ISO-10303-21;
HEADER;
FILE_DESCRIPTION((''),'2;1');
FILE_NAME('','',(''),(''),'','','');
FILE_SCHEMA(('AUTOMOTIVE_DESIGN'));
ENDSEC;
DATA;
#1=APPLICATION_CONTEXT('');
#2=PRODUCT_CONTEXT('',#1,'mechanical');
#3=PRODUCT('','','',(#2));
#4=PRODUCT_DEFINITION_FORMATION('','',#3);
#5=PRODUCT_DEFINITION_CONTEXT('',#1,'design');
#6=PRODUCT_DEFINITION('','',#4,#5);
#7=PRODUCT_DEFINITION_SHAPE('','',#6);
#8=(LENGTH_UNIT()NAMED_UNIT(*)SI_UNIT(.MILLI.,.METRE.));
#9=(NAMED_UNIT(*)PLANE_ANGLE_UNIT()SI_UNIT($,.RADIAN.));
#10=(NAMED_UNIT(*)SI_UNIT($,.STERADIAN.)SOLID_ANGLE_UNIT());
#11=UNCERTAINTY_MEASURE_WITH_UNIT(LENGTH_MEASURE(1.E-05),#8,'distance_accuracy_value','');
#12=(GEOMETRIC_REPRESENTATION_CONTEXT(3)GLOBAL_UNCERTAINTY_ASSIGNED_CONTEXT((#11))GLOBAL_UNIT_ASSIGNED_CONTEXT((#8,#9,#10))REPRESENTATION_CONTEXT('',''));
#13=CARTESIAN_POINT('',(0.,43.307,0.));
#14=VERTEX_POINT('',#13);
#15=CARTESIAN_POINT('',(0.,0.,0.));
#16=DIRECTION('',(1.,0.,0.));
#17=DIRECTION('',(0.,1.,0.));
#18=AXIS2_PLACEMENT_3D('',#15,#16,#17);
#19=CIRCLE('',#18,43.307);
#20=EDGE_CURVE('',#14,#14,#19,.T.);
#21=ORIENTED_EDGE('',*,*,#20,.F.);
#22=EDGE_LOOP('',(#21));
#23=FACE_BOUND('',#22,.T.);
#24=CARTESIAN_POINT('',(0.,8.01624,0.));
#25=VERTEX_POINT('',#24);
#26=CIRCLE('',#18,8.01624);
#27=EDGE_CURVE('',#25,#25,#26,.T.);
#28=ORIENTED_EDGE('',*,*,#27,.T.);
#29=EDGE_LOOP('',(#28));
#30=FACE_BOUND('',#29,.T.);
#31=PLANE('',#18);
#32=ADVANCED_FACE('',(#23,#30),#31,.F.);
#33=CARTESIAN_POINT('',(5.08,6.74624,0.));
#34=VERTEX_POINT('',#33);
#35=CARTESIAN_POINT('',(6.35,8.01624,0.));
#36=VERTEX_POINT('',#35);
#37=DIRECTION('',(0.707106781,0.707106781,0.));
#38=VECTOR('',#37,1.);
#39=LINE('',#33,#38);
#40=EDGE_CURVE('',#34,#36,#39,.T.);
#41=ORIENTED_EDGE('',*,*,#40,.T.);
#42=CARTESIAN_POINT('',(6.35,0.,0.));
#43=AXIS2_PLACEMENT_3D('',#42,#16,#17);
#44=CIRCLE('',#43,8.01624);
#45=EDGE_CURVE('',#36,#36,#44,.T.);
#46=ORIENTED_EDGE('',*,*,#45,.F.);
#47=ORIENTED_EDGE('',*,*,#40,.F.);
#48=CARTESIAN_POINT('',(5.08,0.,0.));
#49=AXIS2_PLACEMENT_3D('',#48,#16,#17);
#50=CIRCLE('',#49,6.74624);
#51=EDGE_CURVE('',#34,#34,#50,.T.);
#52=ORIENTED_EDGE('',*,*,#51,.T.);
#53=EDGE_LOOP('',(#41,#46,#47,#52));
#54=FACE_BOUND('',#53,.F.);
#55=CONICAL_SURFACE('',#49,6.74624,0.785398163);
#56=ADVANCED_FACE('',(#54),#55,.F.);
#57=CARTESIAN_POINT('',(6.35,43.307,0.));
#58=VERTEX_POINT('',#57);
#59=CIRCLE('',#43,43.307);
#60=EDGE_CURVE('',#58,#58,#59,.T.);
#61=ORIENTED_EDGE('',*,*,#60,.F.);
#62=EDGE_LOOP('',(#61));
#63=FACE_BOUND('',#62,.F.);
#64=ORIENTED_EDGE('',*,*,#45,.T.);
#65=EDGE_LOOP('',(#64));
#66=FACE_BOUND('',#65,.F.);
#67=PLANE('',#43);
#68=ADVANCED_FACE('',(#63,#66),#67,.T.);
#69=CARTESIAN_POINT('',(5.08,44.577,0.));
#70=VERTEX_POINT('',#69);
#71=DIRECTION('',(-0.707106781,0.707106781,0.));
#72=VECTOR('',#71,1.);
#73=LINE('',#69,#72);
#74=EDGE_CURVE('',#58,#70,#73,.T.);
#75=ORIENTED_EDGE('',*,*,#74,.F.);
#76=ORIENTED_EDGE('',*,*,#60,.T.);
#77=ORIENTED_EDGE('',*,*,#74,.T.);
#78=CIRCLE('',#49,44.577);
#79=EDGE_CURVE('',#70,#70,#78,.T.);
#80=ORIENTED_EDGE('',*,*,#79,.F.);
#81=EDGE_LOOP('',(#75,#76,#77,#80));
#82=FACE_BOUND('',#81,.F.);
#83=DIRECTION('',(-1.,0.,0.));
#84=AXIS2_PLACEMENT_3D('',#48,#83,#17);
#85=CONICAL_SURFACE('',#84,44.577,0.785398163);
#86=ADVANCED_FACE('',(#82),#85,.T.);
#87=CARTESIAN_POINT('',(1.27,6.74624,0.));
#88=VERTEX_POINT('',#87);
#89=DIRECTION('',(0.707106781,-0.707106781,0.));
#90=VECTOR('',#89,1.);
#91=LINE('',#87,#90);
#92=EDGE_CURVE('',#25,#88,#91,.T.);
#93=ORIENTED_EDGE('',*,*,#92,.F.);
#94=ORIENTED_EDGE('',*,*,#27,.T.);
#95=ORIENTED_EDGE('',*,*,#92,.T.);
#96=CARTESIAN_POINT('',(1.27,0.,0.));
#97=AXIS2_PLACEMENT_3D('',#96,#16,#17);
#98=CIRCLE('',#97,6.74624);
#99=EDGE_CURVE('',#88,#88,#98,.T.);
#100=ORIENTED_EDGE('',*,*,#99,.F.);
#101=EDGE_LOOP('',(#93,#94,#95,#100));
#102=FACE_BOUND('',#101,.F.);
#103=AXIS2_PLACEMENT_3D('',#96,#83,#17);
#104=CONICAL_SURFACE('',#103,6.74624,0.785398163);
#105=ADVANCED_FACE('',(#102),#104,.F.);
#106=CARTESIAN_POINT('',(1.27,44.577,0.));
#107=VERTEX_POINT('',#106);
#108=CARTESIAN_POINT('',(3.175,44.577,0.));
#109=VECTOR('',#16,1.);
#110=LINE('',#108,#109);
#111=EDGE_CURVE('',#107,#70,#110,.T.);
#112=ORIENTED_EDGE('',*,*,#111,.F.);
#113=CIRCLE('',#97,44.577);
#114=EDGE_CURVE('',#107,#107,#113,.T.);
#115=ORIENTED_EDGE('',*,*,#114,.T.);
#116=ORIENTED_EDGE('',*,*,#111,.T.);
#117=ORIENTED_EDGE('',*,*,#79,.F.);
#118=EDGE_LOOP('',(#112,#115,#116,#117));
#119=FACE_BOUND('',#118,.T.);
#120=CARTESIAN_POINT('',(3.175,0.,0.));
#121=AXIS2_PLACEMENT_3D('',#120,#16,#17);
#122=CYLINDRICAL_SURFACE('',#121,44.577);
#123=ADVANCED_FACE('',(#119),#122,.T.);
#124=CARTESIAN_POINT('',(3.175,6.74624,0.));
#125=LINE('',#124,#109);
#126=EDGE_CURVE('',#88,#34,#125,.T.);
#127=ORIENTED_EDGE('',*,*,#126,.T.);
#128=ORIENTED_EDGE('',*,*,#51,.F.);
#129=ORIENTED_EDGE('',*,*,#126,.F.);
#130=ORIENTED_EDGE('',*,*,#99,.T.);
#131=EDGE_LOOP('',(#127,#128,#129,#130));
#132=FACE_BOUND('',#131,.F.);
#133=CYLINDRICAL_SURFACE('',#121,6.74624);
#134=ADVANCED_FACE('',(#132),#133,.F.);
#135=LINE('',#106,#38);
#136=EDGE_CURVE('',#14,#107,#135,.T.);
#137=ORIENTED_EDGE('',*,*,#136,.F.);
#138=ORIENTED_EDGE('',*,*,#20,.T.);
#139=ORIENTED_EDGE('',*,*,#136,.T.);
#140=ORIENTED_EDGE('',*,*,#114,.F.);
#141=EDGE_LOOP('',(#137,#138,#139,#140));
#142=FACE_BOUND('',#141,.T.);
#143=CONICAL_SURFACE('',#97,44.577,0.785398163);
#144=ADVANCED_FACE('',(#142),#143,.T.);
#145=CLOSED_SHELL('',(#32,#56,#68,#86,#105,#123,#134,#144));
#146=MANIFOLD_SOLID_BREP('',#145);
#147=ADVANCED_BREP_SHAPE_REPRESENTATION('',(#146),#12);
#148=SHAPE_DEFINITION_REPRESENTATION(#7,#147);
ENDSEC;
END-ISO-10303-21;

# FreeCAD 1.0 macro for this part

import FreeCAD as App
import Part
import Sketcher
Q = App.Units.Quantity


def edges_at(feature, points):
    """Names of the edges that pass closest to the given points."""
    edges = feature.Shape.Edges
    near = lambda p: min(range(len(edges)), key=lambda i: edges[i].distToShape(Part.Vertex(*p))[0])
    return sorted({f"Edge{near(p) + 1}" for p in points})

doc = App.newDocument("Part")
body = doc.addObject("PartDesign::Body", "Body")

sketch1 = body.newObject("Sketcher::SketchObject", "Sketch")
sketch1.AttachmentSupport = (doc.getObject("XY_Plane"), [""])
sketch1.MapMode = "FlatFace"
sketch1.addGeometry([
    Part.LineSegment(App.Vector(0, 45, 0), App.Vector(0, 7, 0)),
    Part.LineSegment(App.Vector(0, 7, 0), App.Vector(6, 7, 0)),
    Part.LineSegment(App.Vector(6, 7, 0), App.Vector(6, 45, 0)),
    Part.LineSegment(App.Vector(6, 45, 0), App.Vector(0, 45, 0)),
], False)
sketch1.addConstraint([
    Sketcher.Constraint("Coincident", 0, 2, 1, 1),
    Sketcher.Constraint("Coincident", 1, 2, 2, 1),
    Sketcher.Constraint("Coincident", 2, 2, 3, 1),
    Sketcher.Constraint("Coincident", 3, 2, 0, 1),
    Sketcher.Constraint("Vertical", 0),
    Sketcher.Constraint("Horizontal", 1),
    Sketcher.Constraint("Vertical", 2),
    Sketcher.Constraint("Horizontal", 3),
    Sketcher.Constraint("PointOnObject", 0, 2, -2),
    Sketcher.Constraint("DistanceX", 1, 1, 1, 2, Q("0.25 in")),
    Sketcher.Constraint("DistanceY", 0, 2, 0, 1, Q("1.4894 in")),
    Sketcher.Constraint("DistanceY", -1, 1, 2, 2, Q("1.755 in")),
])
revolution = body.newObject("PartDesign::Revolution", "Revolution")
revolution.Profile = sketch1
revolution.ReferenceAxis = (sketch1, ["H_Axis"])
revolution.Angle = 360
doc.recompute()

chamfer = body.newObject("PartDesign::Chamfer", "Chamfer")
chamfer.Base = (revolution, edges_at(revolution, [
    (6.35, -44.577, 0),
    (0, -44.577, 0),
    (6.35, -6.746, 0),
    (0, -6.746, 0),
]))
chamfer.Size = Q("0.05 in")

doc.recompute()
